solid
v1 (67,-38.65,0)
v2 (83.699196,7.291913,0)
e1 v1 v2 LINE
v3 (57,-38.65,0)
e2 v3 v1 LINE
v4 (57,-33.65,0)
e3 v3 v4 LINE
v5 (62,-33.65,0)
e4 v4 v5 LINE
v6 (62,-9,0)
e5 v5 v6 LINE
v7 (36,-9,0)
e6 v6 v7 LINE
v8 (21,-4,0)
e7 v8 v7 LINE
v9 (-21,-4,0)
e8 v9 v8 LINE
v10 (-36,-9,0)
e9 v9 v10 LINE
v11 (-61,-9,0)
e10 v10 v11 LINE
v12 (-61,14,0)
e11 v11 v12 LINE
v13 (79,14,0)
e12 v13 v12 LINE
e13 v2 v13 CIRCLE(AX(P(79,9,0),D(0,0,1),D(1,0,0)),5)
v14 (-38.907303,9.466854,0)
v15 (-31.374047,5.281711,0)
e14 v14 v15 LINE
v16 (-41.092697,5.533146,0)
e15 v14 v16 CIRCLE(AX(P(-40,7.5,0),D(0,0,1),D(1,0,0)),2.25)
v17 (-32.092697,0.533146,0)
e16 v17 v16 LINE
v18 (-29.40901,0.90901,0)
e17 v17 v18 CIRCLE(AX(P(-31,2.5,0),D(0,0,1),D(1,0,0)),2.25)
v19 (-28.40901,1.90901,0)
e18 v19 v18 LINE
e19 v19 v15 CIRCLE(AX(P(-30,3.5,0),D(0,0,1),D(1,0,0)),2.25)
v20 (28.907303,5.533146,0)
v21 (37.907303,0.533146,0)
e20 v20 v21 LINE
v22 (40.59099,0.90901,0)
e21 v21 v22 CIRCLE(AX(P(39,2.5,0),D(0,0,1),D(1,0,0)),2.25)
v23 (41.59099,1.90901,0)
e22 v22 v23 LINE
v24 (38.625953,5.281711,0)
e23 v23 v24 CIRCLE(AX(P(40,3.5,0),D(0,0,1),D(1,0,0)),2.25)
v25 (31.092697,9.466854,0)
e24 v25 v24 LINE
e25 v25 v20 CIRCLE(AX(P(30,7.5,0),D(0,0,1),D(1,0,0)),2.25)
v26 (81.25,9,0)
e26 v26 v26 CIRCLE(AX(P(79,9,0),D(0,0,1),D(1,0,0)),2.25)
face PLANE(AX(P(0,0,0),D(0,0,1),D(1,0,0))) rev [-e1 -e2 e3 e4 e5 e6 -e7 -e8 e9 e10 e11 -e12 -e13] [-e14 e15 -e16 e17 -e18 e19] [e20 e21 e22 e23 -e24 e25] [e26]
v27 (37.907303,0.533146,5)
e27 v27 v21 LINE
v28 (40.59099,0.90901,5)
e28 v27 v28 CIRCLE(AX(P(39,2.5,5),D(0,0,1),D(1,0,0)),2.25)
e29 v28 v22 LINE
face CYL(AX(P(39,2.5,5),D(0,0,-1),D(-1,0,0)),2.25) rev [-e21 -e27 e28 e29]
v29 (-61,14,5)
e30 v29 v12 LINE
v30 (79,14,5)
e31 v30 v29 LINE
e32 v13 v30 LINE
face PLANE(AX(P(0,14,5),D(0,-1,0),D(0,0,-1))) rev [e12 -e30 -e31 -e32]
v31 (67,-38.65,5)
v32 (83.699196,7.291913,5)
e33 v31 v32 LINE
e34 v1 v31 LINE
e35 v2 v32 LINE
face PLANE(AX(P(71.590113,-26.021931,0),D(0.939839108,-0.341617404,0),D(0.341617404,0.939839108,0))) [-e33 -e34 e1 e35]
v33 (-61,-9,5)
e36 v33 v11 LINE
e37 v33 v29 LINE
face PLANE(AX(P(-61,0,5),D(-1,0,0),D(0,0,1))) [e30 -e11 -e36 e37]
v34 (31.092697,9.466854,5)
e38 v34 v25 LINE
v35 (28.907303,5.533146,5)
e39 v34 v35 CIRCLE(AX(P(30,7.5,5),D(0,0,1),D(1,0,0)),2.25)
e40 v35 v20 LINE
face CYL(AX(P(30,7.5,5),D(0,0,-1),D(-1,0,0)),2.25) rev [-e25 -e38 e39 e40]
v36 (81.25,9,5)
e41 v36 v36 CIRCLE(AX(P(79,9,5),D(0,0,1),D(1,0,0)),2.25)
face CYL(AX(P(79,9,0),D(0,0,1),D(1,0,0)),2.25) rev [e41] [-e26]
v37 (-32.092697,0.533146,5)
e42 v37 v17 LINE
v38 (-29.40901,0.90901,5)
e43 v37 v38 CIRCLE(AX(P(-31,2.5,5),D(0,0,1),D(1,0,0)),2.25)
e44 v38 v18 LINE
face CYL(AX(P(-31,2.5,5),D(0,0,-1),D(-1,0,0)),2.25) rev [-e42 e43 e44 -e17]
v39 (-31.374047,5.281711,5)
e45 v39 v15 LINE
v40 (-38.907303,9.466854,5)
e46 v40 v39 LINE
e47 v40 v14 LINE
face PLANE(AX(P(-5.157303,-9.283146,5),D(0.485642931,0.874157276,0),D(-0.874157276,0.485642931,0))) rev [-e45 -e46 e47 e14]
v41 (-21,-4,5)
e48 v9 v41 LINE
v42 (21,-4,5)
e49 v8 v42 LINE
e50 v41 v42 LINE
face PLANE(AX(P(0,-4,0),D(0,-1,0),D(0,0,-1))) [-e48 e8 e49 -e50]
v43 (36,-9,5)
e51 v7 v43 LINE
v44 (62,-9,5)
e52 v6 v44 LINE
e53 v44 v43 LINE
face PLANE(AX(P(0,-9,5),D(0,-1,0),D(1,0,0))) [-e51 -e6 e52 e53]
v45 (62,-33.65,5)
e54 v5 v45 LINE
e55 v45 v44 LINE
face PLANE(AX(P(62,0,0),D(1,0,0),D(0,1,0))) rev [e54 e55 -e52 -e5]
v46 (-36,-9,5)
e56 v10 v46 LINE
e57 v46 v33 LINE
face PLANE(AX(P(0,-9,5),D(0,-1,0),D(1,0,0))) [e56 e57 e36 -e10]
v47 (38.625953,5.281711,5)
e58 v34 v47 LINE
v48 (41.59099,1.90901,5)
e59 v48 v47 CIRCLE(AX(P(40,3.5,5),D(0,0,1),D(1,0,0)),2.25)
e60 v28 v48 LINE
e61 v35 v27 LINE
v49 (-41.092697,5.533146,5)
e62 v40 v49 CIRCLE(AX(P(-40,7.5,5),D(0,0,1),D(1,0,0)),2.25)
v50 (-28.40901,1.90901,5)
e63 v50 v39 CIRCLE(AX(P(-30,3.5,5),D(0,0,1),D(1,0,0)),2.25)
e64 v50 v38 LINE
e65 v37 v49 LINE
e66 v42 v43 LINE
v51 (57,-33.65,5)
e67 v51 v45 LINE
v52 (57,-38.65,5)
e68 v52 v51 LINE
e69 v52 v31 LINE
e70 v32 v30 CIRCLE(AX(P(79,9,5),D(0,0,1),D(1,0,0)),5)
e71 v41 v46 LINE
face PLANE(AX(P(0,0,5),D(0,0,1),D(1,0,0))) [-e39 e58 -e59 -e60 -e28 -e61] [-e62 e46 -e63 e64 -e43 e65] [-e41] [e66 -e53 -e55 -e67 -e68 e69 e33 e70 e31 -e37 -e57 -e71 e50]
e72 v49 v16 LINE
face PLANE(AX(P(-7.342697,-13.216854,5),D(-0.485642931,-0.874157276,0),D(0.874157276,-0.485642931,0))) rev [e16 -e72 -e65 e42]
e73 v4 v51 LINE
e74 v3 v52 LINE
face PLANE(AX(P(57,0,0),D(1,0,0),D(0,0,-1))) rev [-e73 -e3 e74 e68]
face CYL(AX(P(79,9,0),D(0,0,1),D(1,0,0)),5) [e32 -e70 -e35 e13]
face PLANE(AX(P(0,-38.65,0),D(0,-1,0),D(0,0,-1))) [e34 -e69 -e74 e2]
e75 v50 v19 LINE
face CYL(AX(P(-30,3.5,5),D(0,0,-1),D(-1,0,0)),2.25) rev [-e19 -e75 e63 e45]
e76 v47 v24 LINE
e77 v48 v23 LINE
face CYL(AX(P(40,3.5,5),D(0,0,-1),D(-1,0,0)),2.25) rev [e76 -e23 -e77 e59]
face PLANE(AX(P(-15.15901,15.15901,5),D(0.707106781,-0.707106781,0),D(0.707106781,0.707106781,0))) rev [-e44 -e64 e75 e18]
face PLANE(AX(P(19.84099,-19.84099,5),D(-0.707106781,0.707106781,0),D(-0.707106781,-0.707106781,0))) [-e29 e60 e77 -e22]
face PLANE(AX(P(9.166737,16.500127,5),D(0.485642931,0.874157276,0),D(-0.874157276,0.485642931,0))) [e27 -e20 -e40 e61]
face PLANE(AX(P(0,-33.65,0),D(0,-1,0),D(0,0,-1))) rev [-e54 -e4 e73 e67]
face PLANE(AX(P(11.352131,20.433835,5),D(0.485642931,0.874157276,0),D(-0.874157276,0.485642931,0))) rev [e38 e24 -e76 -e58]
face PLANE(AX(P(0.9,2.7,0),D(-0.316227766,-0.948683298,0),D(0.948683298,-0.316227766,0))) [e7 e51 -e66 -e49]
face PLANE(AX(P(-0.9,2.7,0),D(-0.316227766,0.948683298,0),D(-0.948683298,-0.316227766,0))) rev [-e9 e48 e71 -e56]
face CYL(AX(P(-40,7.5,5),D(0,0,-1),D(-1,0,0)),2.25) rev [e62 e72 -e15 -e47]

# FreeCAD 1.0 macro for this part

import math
import FreeCAD as App
import Part
import Sketcher

V = App.Vector
Q = App.Units.Quantity

doc = App.newDocument("Part")
params = doc.addObject("Spreadsheet::Sheet", "Params")
for row, (alias, value) in enumerate([
    ("sketch1_width", "122 mm"),
    ("sketch1_height", "23 mm"),
    ("sketch1_radius", "2.25 mm"),
    ("pad1_length", "5 mm"),
    ("sketch2_width", "72 mm"),
    ("sketch2_width2", "42 mm"),
    ("pocket1_length", "5 mm"),
    ("sketch3_radius", "5 mm"),
    ("sketch3_diameter", "4.5 mm"),
    ("sketch3_width", "18 mm"),
    ("sketch3_width2", "1 mm"),
    ("sketch3_width3", "5 mm"),
    ("pad2_length", "5 mm"),
], start=1):
    params.set(f"A{row}", alias)
    params.set(f"B{row}", "=" + value)
    params.setAlias(f"B{row}", alias)

body = doc.addObject("PartDesign::Body", "Body")

sketch1 = body.newObject("Sketcher::SketchObject", "Sketch")
sketch1.AttachmentSupport = (doc.getObject("XY_Plane"), [""])
sketch1.MapMode = "FlatFace"
sketch1.addGeometry([
    Part.LineSegment(V(-61, -9, 0), V(61, -9, 0)),
    Part.LineSegment(V(61, -9, 0), V(61, 14, 0)),
    Part.LineSegment(V(61, 14, 0), V(-61, 14, 0)),
    Part.LineSegment(V(-61, 14, 0), V(-61, -9, 0)),
    Part.LineSegment(V(31.9, 9, 0), V(38.6, 5.3, 0)),
    Part.ArcOfCircle(Part.Circle(V(40, 3.5, 0), V(0, 0, 1), 2.2), math.radians(0), math.radians(128)),
    Part.ArcOfCircle(Part.Circle(V(40, 3.5, 0), V(0, 0, 1), 2.3), math.radians(-45), math.radians(0)),
    Part.LineSegment(V(41.6, 1.9, 0), V(40.6, 0.9, 0)),
    Part.ArcOfCircle(Part.Circle(V(39, 2.5, 0), V(0, 0, 1), 2.2), math.radians(-119), math.radians(-45)),
    Part.LineSegment(V(37.9, 0.5, 0), V(28.9, 5.5, 0)),
    Part.ArcOfCircle(Part.Circle(V(30, 7.5, 0), V(0, 0, 1), 2.2), math.radians(138), math.radians(241)),
    Part.ArcOfCircle(Part.Circle(V(30, 7.5, 0), V(0, 0, 1), 2.3), math.radians(61), math.radians(138)),
    Part.LineSegment(V(31.1, 9.5, 0), V(31.9, 9, 0)),
    Part.LineSegment(V(-38.1, 9, 0), V(-31.4, 5.3, 0)),
    Part.ArcOfCircle(Part.Circle(V(-30, 3.5, 0), V(0, 0, 1), 2.2), math.radians(0), math.radians(128)),
    Part.ArcOfCircle(Part.Circle(V(-30, 3.5, 0), V(0, 0, 1), 2.3), math.radians(-45), math.radians(0)),
    Part.LineSegment(V(-28.4, 1.9, 0), V(-29.4, 0.9, 0)),
    Part.ArcOfCircle(Part.Circle(V(-31, 2.5, 0), V(0, 0, 1), 2.2), math.radians(-119), math.radians(-45)),
    Part.LineSegment(V(-32.1, 0.5, 0), V(-41.1, 5.5, 0)),
    Part.ArcOfCircle(Part.Circle(V(-40, 7.5, 0), V(0, 0, 1), 2.2), math.radians(138), math.radians(241)),
    Part.ArcOfCircle(Part.Circle(V(-40, 7.5, 0), V(0, 0, 1), 2.3), math.radians(61), math.radians(138)),
    Part.LineSegment(V(-38.9, 9.5, 0), V(-38.1, 9, 0)),
], False)
sketch1.addConstraint([
    Sketcher.Constraint("Coincident", 0, 2, 1, 1),
    Sketcher.Constraint("Coincident", 1, 2, 2, 1),
    Sketcher.Constraint("Coincident", 2, 2, 3, 1),
    Sketcher.Constraint("Coincident", 3, 2, 0, 1),
    Sketcher.Constraint("Coincident", 4, 2, 5, 2),
    Sketcher.Constraint("Tangent", 5, 1, 6, 2),
    Sketcher.Constraint("Tangent", 6, 1, 7, 1),
    Sketcher.Constraint("Tangent", 7, 2, 8, 2),
    Sketcher.Constraint("Tangent", 8, 1, 9, 1),
    Sketcher.Constraint("Tangent", 9, 2, 10, 2),
    Sketcher.Constraint("Tangent", 10, 1, 11, 2),
    Sketcher.Constraint("Tangent", 11, 1, 12, 1),
    Sketcher.Constraint("Coincident", 12, 2, 4, 1),
    Sketcher.Constraint("Coincident", 13, 2, 14, 2),
    Sketcher.Constraint("Tangent", 14, 1, 15, 2),
    Sketcher.Constraint("Tangent", 15, 1, 16, 1),
    Sketcher.Constraint("Tangent", 16, 2, 17, 2),
    Sketcher.Constraint("Tangent", 17, 1, 18, 1),
    Sketcher.Constraint("Tangent", 18, 2, 19, 2),
    Sketcher.Constraint("Tangent", 19, 1, 20, 2),
    Sketcher.Constraint("Tangent", 20, 1, 21, 1),
    Sketcher.Constraint("Coincident", 21, 2, 13, 1),
    Sketcher.Constraint("Horizontal", 0),
    Sketcher.Constraint("Vertical", 1),
    Sketcher.Constraint("Horizontal", 2),
    Sketcher.Constraint("Vertical", 3),
    Sketcher.Constraint("Equal", 5, 6),
    Sketcher.Constraint("Equal", 6, 8),
    Sketcher.Constraint("Equal", 8, 10),
    Sketcher.Constraint("Equal", 10, 11),
    Sketcher.Constraint("Equal", 11, 14),
    Sketcher.Constraint("Equal", 14, 15),
    Sketcher.Constraint("Equal", 15, 17),
    Sketcher.Constraint("Equal", 17, 19),
    Sketcher.Constraint("Equal", 19, 20),
    Sketcher.Constraint("Parallel", 4, 9),
    Sketcher.Constraint("Parallel", 9, 12),
    Sketcher.Constraint("Parallel", 12, 13),
    Sketcher.Constraint("Parallel", 7, 16),
    Sketcher.Constraint("Parallel", 13, 18),
    Sketcher.Constraint("Parallel", 18, 21),
    Sketcher.Constraint("Horizontal", 6, 3, 14, 3),
    Sketcher.Constraint("Horizontal", 8, 3, 17, 3),
    Sketcher.Constraint("Horizontal", 11, 3, 19, 3),
    Sketcher.Constraint("Horizontal", 15, 3, 5, 1),
    Sketcher.Constraint("Horizontal", 10, 1, 12, 2),
    Sketcher.Constraint("Horizontal", 5, 1, 14, 1),
    Sketcher.Constraint("Horizontal", 12, 2, 19, 1),
    Sketcher.Constraint("Horizontal", 19, 1, 21, 2),
    Sketcher.Constraint("DistanceX", 0, 1, 0, 2, Q("122 mm")),
    Sketcher.Constraint("DistanceY", 1, 1, 1, 2, Q("23 mm")),
    Sketcher.Constraint("Angle", 7, Q("-135 deg")),
    Sketcher.Constraint("Radius", 5, Q("2.25 mm")),
    Sketcher.Constraint("DistanceX", -1, 1, 5, 3, Q("40 mm")),
    Sketcher.Constraint("DistanceX", -1, 1, 8, 3, Q("39 mm")),
    Sketcher.Constraint("DistanceX", -1, 1, 10, 3, Q("30 mm")),
    Sketcher.Constraint("DistanceX", 14, 3, -1, 1, Q("30 mm")),
    Sketcher.Constraint("DistanceX", -1, 1, 0, 2, Q("61 mm")),
    Sketcher.Constraint("DistanceY", 0, 2, -1, 1, Q("9 mm")),
    Sketcher.Constraint("DistanceY", -1, 1, 10, 1, Q("9 mm")),
    Sketcher.Constraint("DistanceY", 8, 3, 10, 3, Q("5 mm")),
    Sketcher.Constraint("DistanceY", -1, 1, 5, 3, Q("3.5 mm")),
])
sketch1.setExpression("Constraints[49]", "Params.sketch1_width")
sketch1.setExpression("Constraints[50]", "Params.sketch1_height")
sketch1.setExpression("Constraints[52]", "Params.sketch1_radius")
pad1 = body.newObject("PartDesign::Pad", "Pad")
pad1.Profile = sketch1
pad1.setExpression("Length", "Params.pad1_length")

sketch2 = body.newObject("Sketcher::SketchObject", "Sketch001")
sketch2.AttachmentSupport = (doc.getObject("XY_Plane"), [""])
sketch2.MapMode = "FlatFace"
sketch2.AttachmentOffset = App.Placement(V(0, 0, 5), App.Rotation())
sketch2.addGeometry([
    Part.LineSegment(V(-36, -9, 0), V(36, -9, 0)),
    Part.LineSegment(V(36, -9, 0), V(21, -4, 0)),
    Part.LineSegment(V(21, -4, 0), V(-21, -4, 0)),
    Part.LineSegment(V(-21, -4, 0), V(-36, -9, 0)),
], False)
sketch2.addConstraint([
    Sketcher.Constraint("Coincident", 0, 2, 1, 1),
    Sketcher.Constraint("Coincident", 1, 2, 2, 1),
    Sketcher.Constraint("Coincident", 2, 2, 3, 1),
    Sketcher.Constraint("Coincident", 3, 2, 0, 1),
    Sketcher.Constraint("Horizontal", 0),
    Sketcher.Constraint("Horizontal", 2),
    Sketcher.Constraint("Equal", 1, 3),
    Sketcher.Constraint("DistanceX", 0, 1, 0, 2, Q("72 mm")),
    Sketcher.Constraint("DistanceX", 2, 2, 2, 1, Q("42 mm")),
    Sketcher.Constraint("DistanceX", -1, 1, 0, 2, Q("36 mm")),
    Sketcher.Constraint("DistanceY", 0, 2, -1, 1, Q("9 mm")),
    Sketcher.Constraint("DistanceY", 1, 2, -1, 1, Q("4 mm")),
])
sketch2.setExpression("Constraints[7]", "Params.sketch2_width")
sketch2.setExpression("Constraints[8]", "Params.sketch2_width2")
pocket1 = body.newObject("PartDesign::Pocket", "Pocket")
pocket1.Profile = sketch2
pocket1.setExpression("Length", "Params.pocket1_length")

sketch3 = body.newObject("Sketcher::SketchObject", "Sketch002")
sketch3.AttachmentSupport = (doc.getObject("XY_Plane"), [""])
sketch3.MapMode = "FlatFace"
sketch3.AttachmentOffset = App.Placement(V(0, 0, 5), App.Rotation())
sketch3.addGeometry([
    Part.LineSegment(V(79, 14, 0), V(61, 14, 0)),
    Part.LineSegment(V(61, 14, 0), V(61, -9, 0)),
    Part.LineSegment(V(61, -9, 0), V(62, -9, 0)),
    Part.LineSegment(V(62, -9, 0), V(62, -33.6, 0)),
    Part.LineSegment(V(62, -33.6, 0), V(57, -33.6, 0)),
    Part.LineSegment(V(57, -33.6, 0), V(57, -38.6, 0)),
    Part.LineSegment(V(57, -38.6, 0), V(67, -38.6, 0)),
    Part.LineSegment(V(67, -38.6, 0), V(83.7, 7.3, 0)),
    Part.ArcOfCircle(Part.Circle(V(79, 9, 0), V(0, 0, 1), 5), math.radians(-20), math.radians(90)),
    Part.Circle(V(79, 9, 0), V(0, 0, 1), 2.2),
], False)
sketch3.addConstraint([
    Sketcher.Constraint("Coincident", 0, 2, 1, 1),
    Sketcher.Constraint("Coincident", 1, 2, 2, 1),
    Sketcher.Constraint("Coincident", 2, 2, 3, 1),
    Sketcher.Constraint("Coincident", 3, 2, 4, 1),
    Sketcher.Constraint("Coincident", 4, 2, 5, 1),
    Sketcher.Constraint("Coincident", 5, 2, 6, 1),
    Sketcher.Constraint("Coincident", 6, 2, 7, 1),
    Sketcher.Constraint("Tangent", 7, 2, 8, 1),
    Sketcher.Constraint("Tangent", 8, 2, 0, 1),
    Sketcher.Constraint("Horizontal", 0),
    Sketcher.Constraint("Vertical", 1),
    Sketcher.Constraint("Horizontal", 2),
    Sketcher.Constraint("Vertical", 3),
    Sketcher.Constraint("Horizontal", 4),
    Sketcher.Constraint("Vertical", 5),
    Sketcher.Constraint("Horizontal", 6),
    Sketcher.Constraint("Coincident", 9, 3, 8, 3),
    Sketcher.Constraint("Equal", 4, 5),
    Sketcher.Constraint("Radius", 8, Q("5 mm")),
    Sketcher.Constraint("Diameter", 9, Q("4.5 mm")),
    Sketcher.Constraint("DistanceX", 0, 2, 0, 1, Q("18 mm")),
    Sketcher.Constraint("DistanceX", 2, 1, 2, 2, Q("1 mm")),
    Sketcher.Constraint("DistanceX", 4, 2, 4, 1, Q("5 mm")),
    Sketcher.Constraint("DistanceX", 6, 1, 6, 2, Q("10 mm")),
    Sketcher.Constraint("DistanceY", 1, 2, 1, 1, Q("23 mm")),
    Sketcher.Constraint("DistanceX", -1, 1, 8, 3, Q("79 mm")),
    Sketcher.Constraint("DistanceY", -1, 1, 8, 3, Q("9 mm")),
    Sketcher.Constraint("DistanceY", 3, 2, 3, 1, Q("24.65 mm")),
])
sketch3.setExpression("Constraints[18]", "Params.sketch3_radius")
sketch3.setExpression("Constraints[19]", "Params.sketch3_diameter")
sketch3.setExpression("Constraints[20]", "Params.sketch3_width")
sketch3.setExpression("Constraints[21]", "Params.sketch3_width2")
sketch3.setExpression("Constraints[22]", "Params.sketch3_width3")
pad2 = body.newObject("PartDesign::Pad", "Pad001")
pad2.Profile = sketch3
pad2.setExpression("Length", "Params.pad2_length")
pad2.Reversed = True

doc.recompute()
